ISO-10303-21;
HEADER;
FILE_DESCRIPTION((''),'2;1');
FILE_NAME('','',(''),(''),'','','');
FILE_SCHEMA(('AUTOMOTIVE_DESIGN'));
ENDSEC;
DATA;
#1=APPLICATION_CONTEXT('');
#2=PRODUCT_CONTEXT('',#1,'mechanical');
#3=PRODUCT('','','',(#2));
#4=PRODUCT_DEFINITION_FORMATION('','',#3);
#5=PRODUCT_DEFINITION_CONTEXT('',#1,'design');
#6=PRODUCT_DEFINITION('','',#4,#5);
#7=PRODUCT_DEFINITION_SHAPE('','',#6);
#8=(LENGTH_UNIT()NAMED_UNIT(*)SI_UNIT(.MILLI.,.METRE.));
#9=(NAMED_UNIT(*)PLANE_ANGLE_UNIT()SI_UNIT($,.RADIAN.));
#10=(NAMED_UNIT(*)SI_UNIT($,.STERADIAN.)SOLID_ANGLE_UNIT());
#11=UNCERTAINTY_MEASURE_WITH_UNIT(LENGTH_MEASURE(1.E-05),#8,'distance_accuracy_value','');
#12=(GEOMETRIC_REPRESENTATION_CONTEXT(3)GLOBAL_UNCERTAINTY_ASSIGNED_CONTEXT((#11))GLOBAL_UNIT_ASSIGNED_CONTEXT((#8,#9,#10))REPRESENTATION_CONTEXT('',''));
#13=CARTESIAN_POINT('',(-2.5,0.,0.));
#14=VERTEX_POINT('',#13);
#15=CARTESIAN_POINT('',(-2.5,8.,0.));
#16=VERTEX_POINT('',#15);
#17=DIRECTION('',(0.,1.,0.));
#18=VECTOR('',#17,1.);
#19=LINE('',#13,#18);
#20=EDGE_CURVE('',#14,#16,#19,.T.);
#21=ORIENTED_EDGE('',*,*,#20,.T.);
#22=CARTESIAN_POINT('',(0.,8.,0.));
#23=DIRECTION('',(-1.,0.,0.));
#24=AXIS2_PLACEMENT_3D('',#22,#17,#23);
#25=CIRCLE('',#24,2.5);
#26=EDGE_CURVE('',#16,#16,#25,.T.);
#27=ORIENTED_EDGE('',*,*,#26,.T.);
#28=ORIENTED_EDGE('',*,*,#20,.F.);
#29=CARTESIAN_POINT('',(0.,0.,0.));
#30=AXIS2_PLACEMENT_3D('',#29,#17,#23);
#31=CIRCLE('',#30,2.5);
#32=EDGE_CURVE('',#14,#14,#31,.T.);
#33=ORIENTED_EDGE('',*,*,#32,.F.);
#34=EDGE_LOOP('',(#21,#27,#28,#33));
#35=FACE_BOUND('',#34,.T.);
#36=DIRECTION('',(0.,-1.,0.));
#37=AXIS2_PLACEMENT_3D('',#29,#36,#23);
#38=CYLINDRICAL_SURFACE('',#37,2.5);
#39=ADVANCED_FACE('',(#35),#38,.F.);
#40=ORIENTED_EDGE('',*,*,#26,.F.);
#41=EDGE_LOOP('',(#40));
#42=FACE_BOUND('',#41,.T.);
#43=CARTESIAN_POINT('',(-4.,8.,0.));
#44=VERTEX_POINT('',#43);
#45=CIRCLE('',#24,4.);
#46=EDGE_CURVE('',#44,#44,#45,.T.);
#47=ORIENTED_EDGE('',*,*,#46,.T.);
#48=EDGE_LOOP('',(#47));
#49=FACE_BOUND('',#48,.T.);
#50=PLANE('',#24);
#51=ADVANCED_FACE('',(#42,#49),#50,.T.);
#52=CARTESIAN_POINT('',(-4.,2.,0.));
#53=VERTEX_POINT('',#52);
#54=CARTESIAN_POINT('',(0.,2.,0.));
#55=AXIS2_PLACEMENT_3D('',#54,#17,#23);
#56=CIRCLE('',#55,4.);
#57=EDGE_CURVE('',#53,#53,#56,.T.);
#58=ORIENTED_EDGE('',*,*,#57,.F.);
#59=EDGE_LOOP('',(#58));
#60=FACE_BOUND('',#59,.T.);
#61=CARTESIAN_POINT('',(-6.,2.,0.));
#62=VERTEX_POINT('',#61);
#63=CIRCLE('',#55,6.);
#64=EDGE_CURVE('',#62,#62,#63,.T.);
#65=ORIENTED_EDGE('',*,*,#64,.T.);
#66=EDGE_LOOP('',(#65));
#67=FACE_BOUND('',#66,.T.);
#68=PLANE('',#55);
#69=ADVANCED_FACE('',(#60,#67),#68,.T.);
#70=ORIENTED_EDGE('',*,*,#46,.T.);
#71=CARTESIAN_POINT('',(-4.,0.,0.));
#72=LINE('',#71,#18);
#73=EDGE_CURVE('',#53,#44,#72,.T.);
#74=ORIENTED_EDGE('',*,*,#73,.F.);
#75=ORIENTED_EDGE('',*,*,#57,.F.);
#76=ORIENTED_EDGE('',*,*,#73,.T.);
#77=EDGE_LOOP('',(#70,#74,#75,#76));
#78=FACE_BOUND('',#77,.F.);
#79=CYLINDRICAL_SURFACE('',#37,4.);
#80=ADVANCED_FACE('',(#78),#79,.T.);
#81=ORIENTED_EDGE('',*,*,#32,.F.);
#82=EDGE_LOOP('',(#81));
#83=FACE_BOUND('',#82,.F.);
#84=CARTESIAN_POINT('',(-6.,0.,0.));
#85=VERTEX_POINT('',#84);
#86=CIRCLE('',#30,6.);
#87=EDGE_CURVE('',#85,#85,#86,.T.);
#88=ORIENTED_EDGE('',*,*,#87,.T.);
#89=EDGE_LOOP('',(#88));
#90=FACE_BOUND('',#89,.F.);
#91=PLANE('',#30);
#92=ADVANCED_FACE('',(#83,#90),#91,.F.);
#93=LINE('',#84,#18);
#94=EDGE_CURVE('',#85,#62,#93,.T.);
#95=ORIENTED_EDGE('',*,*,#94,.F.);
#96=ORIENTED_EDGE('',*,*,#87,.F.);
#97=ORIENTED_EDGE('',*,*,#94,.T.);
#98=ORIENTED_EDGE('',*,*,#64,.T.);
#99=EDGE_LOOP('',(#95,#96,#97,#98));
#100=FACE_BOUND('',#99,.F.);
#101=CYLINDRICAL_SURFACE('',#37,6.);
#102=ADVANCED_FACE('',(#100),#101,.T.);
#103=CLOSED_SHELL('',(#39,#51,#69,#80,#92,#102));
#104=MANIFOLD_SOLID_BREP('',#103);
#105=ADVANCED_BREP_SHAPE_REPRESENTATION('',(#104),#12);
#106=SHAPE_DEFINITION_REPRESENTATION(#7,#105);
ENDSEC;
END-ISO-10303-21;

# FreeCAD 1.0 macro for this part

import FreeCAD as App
import Part
import Sketcher

doc = App.newDocument("Part")
params = doc.addObject("Spreadsheet::Sheet", "Params")
for row, (alias, value) in enumerate([
    ("sketch1_diameter", "8 mm"),
    ("sketch1_diameter2", "5 mm"),
    ("pad1_length", "8 mm"),
    ("sketch2_diameter", "12 mm"),
    ("sketch2_diameter2", "8 mm"),
    ("pad2_length", "2 mm"),
], start=1):
    params.set(f"A{row}", alias)
    params.set(f"B{row}", "=" + value)
    params.setAlias(f"B{row}", alias)

body = doc.addObject("PartDesign::Body", "Body")

sketch1 = doc.addObject("Sketcher::SketchObject", "Sketch")
body.addObject(sketch1)
sketch1.AttachmentSupport = (doc.XZ_Plane, [""])
sketch1.MapMode = "FlatFace"
sketch1.addGeometry([
    Part.Circle(App.Vector(0, 0, 0), App.Vector(0, 0, 1), 4),
    Part.Circle(App.Vector(0, 0, 0), App.Vector(0, 0, 1), 2.5),
], False)
sketch1.addConstraint([
    Sketcher.Constraint("Coincident", 0, 3, -1, 1),
    Sketcher.Constraint("Coincident", 1, 3, -1, 1),
    Sketcher.Constraint("Diameter", 0, 8.0),
    Sketcher.Constraint("Diameter", 1, 5.0),
])
sketch1.setExpression("Constraints[2]", "Params.sketch1_diameter")
sketch1.setExpression("Constraints[3]", "Params.sketch1_diameter2")
pad1 = doc.addObject("PartDesign::Pad", "Pad")
body.addObject(pad1)
pad1.Profile = sketch1
pad1.setExpression("Length", "Params.pad1_length")
pad1.Reversed = True

sketch2 = doc.addObject("Sketcher::SketchObject", "Sketch001")
body.addObject(sketch2)
sketch2.AttachmentSupport = (doc.XZ_Plane, [""])
sketch2.MapMode = "FlatFace"
sketch2.addGeometry([
    Part.Circle(App.Vector(0, 0, 0), App.Vector(0, 0, 1), 6),
    Part.Circle(App.Vector(0, 0, 0), App.Vector(0, 0, 1), 4),
], False)
sketch2.addConstraint([
    Sketcher.Constraint("Coincident", 0, 3, -1, 1),
    Sketcher.Constraint("Coincident", 1, 3, -1, 1),
    Sketcher.Constraint("Diameter", 0, 12.0),
    Sketcher.Constraint("Diameter", 1, 8.0),
])
sketch2.setExpression("Constraints[2]", "Params.sketch2_diameter")
sketch2.setExpression("Constraints[3]", "Params.sketch2_diameter2")
pad2 = doc.addObject("PartDesign::Pad", "Pad001")
body.addObject(pad2)
pad2.Profile = sketch2
pad2.setExpression("Length", "Params.pad2_length")
pad2.Reversed = True

doc.recompute()
